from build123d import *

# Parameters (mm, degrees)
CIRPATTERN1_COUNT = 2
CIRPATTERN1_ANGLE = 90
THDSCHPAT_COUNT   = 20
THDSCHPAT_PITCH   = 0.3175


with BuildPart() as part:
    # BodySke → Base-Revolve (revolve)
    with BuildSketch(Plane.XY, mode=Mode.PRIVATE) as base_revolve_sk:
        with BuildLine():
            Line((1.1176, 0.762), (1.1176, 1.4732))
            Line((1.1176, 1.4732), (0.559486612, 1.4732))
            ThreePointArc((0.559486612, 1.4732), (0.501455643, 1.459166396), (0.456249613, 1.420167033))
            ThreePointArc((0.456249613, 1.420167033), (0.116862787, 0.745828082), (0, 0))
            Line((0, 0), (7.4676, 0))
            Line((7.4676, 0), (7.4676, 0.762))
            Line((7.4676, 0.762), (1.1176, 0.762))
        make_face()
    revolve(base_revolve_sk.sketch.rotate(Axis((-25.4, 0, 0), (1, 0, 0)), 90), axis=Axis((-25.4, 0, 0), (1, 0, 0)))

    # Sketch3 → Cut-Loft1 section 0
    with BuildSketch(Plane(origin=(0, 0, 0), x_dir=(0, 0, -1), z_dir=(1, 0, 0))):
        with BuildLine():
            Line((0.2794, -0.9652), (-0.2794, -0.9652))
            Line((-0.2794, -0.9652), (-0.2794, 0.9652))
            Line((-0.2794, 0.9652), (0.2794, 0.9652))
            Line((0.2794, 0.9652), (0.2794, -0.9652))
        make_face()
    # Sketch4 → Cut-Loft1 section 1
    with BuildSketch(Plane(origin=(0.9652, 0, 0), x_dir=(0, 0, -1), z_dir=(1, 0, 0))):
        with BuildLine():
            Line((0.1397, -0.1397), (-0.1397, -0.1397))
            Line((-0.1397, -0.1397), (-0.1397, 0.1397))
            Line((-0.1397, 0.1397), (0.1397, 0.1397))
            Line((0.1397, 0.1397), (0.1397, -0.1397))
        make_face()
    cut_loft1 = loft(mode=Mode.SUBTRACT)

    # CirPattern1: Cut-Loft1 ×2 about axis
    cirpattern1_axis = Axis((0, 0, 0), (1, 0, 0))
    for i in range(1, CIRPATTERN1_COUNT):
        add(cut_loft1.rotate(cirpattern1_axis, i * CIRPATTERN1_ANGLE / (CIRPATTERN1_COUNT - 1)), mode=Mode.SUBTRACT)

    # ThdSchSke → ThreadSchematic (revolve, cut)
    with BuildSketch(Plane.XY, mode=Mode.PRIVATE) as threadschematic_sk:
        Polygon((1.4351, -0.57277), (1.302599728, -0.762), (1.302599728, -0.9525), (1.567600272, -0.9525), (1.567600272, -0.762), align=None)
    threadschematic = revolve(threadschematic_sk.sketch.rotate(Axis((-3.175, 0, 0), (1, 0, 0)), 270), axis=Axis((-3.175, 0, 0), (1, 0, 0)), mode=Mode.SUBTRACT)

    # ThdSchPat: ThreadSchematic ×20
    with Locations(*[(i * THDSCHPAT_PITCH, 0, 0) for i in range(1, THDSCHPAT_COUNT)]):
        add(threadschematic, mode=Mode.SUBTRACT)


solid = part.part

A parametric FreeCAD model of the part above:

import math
import FreeCAD as App
import Part
import Sketcher
Q = App.Units.Quantity

doc = App.newDocument("Part")
body = doc.addObject("PartDesign::Body", "Body")

sketch1 = doc.addObject("Sketcher::SketchObject", "Sketch")
body.addObject(sketch1)
sketch1.AttachmentSupport = (doc.XY_Plane, [""])
sketch1.MapMode = "FlatFace"
sketch1.addGeometry(Part.LineSegment(App.Vector(1.12, 0.76, 0), App.Vector(1.12, 1.47, 0)), False)
sketch1.addGeometry(Part.LineSegment(App.Vector(1.12, 1.47, 0), App.Vector(0.56, 1.47, 0)), False)
sketch1.addGeometry(Part.ArcOfCircle(Part.Circle(App.Vector(0.56, 1.35, 0), App.Vector(0, 0, 1), 0.13), math.radians(90), math.radians(144)), False)
sketch1.addGeometry(Part.ArcOfCircle(Part.Circle(App.Vector(2.44, 0, 0), App.Vector(0, 0, 1), 2.44), math.radians(144), math.radians(180)), False)
sketch1.addGeometry(Part.LineSegment(App.Vector(0, 0, 0), App.Vector(7.47, 0, 0)), False)
sketch1.addGeometry(Part.LineSegment(App.Vector(7.47, 0, 0), App.Vector(7.47, 0.76, 0)), False)
sketch1.addGeometry(Part.LineSegment(App.Vector(7.47, 0.76, 0), App.Vector(1.12, 0.76, 0)), False)
sketch1.addConstraint(Sketcher.Constraint("Coincident", 0, 2, 1, 1))
sketch1.addConstraint(Sketcher.Constraint("Tangent", 1, 2, 2, 1))
sketch1.addConstraint(Sketcher.Constraint("Tangent", 2, 2, 3, 1))
sketch1.addConstraint(Sketcher.Constraint("Coincident", 3, 2, 4, 1))
sketch1.addConstraint(Sketcher.Constraint("Coincident", 4, 2, 5, 1))
sketch1.addConstraint(Sketcher.Constraint("Coincident", 5, 2, 6, 1))
sketch1.addConstraint(Sketcher.Constraint("Coincident", 6, 2, 0, 1))
sketch1.addConstraint(Sketcher.Constraint("Vertical", 0))
sketch1.addConstraint(Sketcher.Constraint("Horizontal", 1))
sketch1.addConstraint(Sketcher.Constraint("Horizontal", 4))
sketch1.addConstraint(Sketcher.Constraint("Vertical", 5))
sketch1.addConstraint(Sketcher.Constraint("Horizontal", 6))
sketch1.addConstraint(Sketcher.Constraint("Coincident", 3, 2, -1, 1))
sketch1.addConstraint(Sketcher.Constraint("PointOnObject", 3, 3, -1))
sketch1.addConstraint(Sketcher.Constraint("Radius", 2, Q("0.005 in")))
sketch1.addConstraint(Sketcher.Constraint("Radius", 3, Q("0.096 in")))
sketch1.addConstraint(Sketcher.Constraint("DistanceX", 6, 2, 6, 1, Q("0.25 in")))
sketch1.addConstraint(Sketcher.Constraint("DistanceY", 5, 1, 5, 2, Q("0.03 in")))
sketch1.addConstraint(Sketcher.Constraint("DistanceX", 4, 1, 4, 2, Q("0.294 in")))
sketch1.addConstraint(Sketcher.Constraint("DistanceY", 0, 1, 0, 2, Q("0.028 in")))
revolution = doc.addObject("PartDesign::Revolution", "Revolution")
body.addObject(revolution)
revolution.Profile = sketch1
revolution.ReferenceAxis = (sketch1, ["H_Axis"])
revolution.Angle = 360

sketch2 = doc.addObject("Sketcher::SketchObject", "Sketch001")
body.addObject(sketch2)
sketch2.AttachmentSupport = (doc.YZ_Plane, [""])
sketch2.MapMode = "FlatFace"
sketch2.addGeometry(Part.LineSegment(App.Vector(-1, 0.3, 0), App.Vector(-1, -0.3, 0)), False)
sketch2.addGeometry(Part.LineSegment(App.Vector(-1, -0.3, 0), App.Vector(1, -0.3, 0)), False)
sketch2.addGeometry(Part.LineSegment(App.Vector(1, -0.3, 0), App.Vector(1, 0.3, 0)), False)
sketch2.addGeometry(Part.LineSegment(App.Vector(1, 0.3, 0), App.Vector(-1, 0.3, 0)), False)
sketch2.addConstraint(Sketcher.Constraint("Coincident", 0, 2, 1, 1))
sketch2.addConstraint(Sketcher.Constraint("Coincident", 1, 2, 2, 1))
sketch2.addConstraint(Sketcher.Constraint("Coincident", 2, 2, 3, 1))
sketch2.addConstraint(Sketcher.Constraint("Coincident", 3, 2, 0, 1))
sketch2.addConstraint(Sketcher.Constraint("Vertical", 0))
sketch2.addConstraint(Sketcher.Constraint("Horizontal", 1))
sketch2.addConstraint(Sketcher.Constraint("Vertical", 2))
sketch2.addConstraint(Sketcher.Constraint("Horizontal", 3))
sketch2.addConstraint(Sketcher.Constraint("Symmetric", 0, 2, 2, 2, -1, 1))
sketch2.addConstraint(Sketcher.Constraint("DistanceX", 1, 1, 1, 2, Q("0.076 in")))
sketch2.addConstraint(Sketcher.Constraint("DistanceY", 0, 2, 0, 1, Q("0.022 in")))

sketch3 = doc.addObject("Sketcher::SketchObject", "Sketch002")
body.addObject(sketch3)
sketch3.AttachmentSupport = (doc.YZ_Plane, [""])
sketch3.MapMode = "FlatFace"
sketch3.AttachmentOffset = App.Placement(App.Vector(0, 0, 0.038 * 25.4), App.Rotation())
sketch3.addGeometry(Part.LineSegment(App.Vector(-0.14, 0.14, 0), App.Vector(-0.14, -0.14, 0)), False)
sketch3.addGeometry(Part.LineSegment(App.Vector(-0.14, -0.14, 0), App.Vector(0.14, -0.14, 0)), False)
sketch3.addGeometry(Part.LineSegment(App.Vector(0.14, -0.14, 0), App.Vector(0.14, 0.14, 0)), False)
sketch3.addGeometry(Part.LineSegment(App.Vector(0.14, 0.14, 0), App.Vector(-0.14, 0.14, 0)), False)
sketch3.addConstraint(Sketcher.Constraint("Coincident", 0, 2, 1, 1))
sketch3.addConstraint(Sketcher.Constraint("Coincident", 1, 2, 2, 1))
sketch3.addConstraint(Sketcher.Constraint("Coincident", 2, 2, 3, 1))
sketch3.addConstraint(Sketcher.Constraint("Coincident", 3, 2, 0, 1))
sketch3.addConstraint(Sketcher.Constraint("Vertical", 0))
sketch3.addConstraint(Sketcher.Constraint("Horizontal", 1))
sketch3.addConstraint(Sketcher.Constraint("Vertical", 2))
sketch3.addConstraint(Sketcher.Constraint("Horizontal", 3))
sketch3.addConstraint(Sketcher.Constraint("Symmetric", 0, 2, 2, 2, -1, 1))
sketch3.addConstraint(Sketcher.Constraint("Equal", 3, 0))
sketch3.addConstraint(Sketcher.Constraint("DistanceX", 1, 1, 1, 2, Q("0.011 in")))

subtractiveloft = doc.addObject("PartDesign::SubtractiveLoft", "SubtractiveLoft")
body.addObject(subtractiveloft)
subtractiveloft.Profile = sketch2
subtractiveloft.Sections = [sketch3]
doc.recompute()

polarpattern = doc.addObject("PartDesign::PolarPattern", "PolarPattern")
body.addObject(polarpattern)
polarpattern.Originals = [subtractiveloft]
polarpattern.Axis = (doc.X_Axis, [""])
polarpattern.Angle = 90
polarpattern.Occurrences = 2
body.Tip = polarpattern

sketch4 = doc.addObject("Sketcher::SketchObject", "Sketch003")
body.addObject(sketch4)
sketch4.AttachmentSupport = (doc.XY_Plane, [""])
sketch4.MapMode = "FlatFace"
sketch4.addGeometry(Part.LineSegment(App.Vector(1.44, -0.57, 0), App.Vector(1.3, -0.76, 0)), False)
sketch4.addGeometry(Part.LineSegment(App.Vector(1.3, -0.76, 0), App.Vector(1.3, -0.95, 0)), False)
sketch4.addGeometry(Part.LineSegment(App.Vector(1.3, -0.95, 0), App.Vector(1.57, -0.95, 0)), False)
sketch4.addGeometry(Part.LineSegment(App.Vector(1.57, -0.95, 0), App.Vector(1.57, -0.76, 0)), False)
sketch4.addGeometry(Part.LineSegment(App.Vector(1.57, -0.76, 0), App.Vector(1.44, -0.57, 0)), False)
sketch4.addConstraint(Sketcher.Constraint("Coincident", 0, 2, 1, 1))
sketch4.addConstraint(Sketcher.Constraint("Coincident", 1, 2, 2, 1))
sketch4.addConstraint(Sketcher.Constraint("Coincident", 2, 2, 3, 1))
sketch4.addConstraint(Sketcher.Constraint("Coincident", 3, 2, 4, 1))
sketch4.addConstraint(Sketcher.Constraint("Coincident", 4, 2, 0, 1))
sketch4.addConstraint(Sketcher.Constraint("Vertical", 1))
sketch4.addConstraint(Sketcher.Constraint("Horizontal", 2))
sketch4.addConstraint(Sketcher.Constraint("Vertical", 3))
sketch4.addConstraint(Sketcher.Constraint("Horizontal", 0, 2, 3, 2))
sketch4.addConstraint(Sketcher.Constraint("Equal", 0, 4))
sketch4.addConstraint(Sketcher.Constraint("Angle", 0, Q("-125 deg")))
sketch4.addConstraint(Sketcher.Constraint("DistanceY", 0, 2, -1, 1, Q("0.03 in")))
sketch4.addConstraint(Sketcher.Constraint("DistanceY", 1, 2, 1, 1, Q("0.0075 in")))
sketch4.addConstraint(Sketcher.Constraint("DistanceX", 2, 1, 2, 2, 0.265001))
sketch4.addConstraint(Sketcher.Constraint("DistanceX", -1, 1, 4, 2, Q("0.0565 in")))
groove = doc.addObject("PartDesign::Groove", "Groove")
body.addObject(groove)
groove.Profile = sketch4
groove.ReferenceAxis = (sketch4, ["H_Axis"])
groove.Angle = 360
doc.recompute()

linearpattern = doc.addObject("PartDesign::LinearPattern", "LinearPattern")
body.addObject(linearpattern)
linearpattern.Originals = [groove]
linearpattern.Direction = (doc.X_Axis, [""])
linearpattern.Mode = "offset"
linearpattern.Offset = Q("0.0125 in")
linearpattern.Occurrences = 20
body.Tip = linearpattern

doc.recompute()
